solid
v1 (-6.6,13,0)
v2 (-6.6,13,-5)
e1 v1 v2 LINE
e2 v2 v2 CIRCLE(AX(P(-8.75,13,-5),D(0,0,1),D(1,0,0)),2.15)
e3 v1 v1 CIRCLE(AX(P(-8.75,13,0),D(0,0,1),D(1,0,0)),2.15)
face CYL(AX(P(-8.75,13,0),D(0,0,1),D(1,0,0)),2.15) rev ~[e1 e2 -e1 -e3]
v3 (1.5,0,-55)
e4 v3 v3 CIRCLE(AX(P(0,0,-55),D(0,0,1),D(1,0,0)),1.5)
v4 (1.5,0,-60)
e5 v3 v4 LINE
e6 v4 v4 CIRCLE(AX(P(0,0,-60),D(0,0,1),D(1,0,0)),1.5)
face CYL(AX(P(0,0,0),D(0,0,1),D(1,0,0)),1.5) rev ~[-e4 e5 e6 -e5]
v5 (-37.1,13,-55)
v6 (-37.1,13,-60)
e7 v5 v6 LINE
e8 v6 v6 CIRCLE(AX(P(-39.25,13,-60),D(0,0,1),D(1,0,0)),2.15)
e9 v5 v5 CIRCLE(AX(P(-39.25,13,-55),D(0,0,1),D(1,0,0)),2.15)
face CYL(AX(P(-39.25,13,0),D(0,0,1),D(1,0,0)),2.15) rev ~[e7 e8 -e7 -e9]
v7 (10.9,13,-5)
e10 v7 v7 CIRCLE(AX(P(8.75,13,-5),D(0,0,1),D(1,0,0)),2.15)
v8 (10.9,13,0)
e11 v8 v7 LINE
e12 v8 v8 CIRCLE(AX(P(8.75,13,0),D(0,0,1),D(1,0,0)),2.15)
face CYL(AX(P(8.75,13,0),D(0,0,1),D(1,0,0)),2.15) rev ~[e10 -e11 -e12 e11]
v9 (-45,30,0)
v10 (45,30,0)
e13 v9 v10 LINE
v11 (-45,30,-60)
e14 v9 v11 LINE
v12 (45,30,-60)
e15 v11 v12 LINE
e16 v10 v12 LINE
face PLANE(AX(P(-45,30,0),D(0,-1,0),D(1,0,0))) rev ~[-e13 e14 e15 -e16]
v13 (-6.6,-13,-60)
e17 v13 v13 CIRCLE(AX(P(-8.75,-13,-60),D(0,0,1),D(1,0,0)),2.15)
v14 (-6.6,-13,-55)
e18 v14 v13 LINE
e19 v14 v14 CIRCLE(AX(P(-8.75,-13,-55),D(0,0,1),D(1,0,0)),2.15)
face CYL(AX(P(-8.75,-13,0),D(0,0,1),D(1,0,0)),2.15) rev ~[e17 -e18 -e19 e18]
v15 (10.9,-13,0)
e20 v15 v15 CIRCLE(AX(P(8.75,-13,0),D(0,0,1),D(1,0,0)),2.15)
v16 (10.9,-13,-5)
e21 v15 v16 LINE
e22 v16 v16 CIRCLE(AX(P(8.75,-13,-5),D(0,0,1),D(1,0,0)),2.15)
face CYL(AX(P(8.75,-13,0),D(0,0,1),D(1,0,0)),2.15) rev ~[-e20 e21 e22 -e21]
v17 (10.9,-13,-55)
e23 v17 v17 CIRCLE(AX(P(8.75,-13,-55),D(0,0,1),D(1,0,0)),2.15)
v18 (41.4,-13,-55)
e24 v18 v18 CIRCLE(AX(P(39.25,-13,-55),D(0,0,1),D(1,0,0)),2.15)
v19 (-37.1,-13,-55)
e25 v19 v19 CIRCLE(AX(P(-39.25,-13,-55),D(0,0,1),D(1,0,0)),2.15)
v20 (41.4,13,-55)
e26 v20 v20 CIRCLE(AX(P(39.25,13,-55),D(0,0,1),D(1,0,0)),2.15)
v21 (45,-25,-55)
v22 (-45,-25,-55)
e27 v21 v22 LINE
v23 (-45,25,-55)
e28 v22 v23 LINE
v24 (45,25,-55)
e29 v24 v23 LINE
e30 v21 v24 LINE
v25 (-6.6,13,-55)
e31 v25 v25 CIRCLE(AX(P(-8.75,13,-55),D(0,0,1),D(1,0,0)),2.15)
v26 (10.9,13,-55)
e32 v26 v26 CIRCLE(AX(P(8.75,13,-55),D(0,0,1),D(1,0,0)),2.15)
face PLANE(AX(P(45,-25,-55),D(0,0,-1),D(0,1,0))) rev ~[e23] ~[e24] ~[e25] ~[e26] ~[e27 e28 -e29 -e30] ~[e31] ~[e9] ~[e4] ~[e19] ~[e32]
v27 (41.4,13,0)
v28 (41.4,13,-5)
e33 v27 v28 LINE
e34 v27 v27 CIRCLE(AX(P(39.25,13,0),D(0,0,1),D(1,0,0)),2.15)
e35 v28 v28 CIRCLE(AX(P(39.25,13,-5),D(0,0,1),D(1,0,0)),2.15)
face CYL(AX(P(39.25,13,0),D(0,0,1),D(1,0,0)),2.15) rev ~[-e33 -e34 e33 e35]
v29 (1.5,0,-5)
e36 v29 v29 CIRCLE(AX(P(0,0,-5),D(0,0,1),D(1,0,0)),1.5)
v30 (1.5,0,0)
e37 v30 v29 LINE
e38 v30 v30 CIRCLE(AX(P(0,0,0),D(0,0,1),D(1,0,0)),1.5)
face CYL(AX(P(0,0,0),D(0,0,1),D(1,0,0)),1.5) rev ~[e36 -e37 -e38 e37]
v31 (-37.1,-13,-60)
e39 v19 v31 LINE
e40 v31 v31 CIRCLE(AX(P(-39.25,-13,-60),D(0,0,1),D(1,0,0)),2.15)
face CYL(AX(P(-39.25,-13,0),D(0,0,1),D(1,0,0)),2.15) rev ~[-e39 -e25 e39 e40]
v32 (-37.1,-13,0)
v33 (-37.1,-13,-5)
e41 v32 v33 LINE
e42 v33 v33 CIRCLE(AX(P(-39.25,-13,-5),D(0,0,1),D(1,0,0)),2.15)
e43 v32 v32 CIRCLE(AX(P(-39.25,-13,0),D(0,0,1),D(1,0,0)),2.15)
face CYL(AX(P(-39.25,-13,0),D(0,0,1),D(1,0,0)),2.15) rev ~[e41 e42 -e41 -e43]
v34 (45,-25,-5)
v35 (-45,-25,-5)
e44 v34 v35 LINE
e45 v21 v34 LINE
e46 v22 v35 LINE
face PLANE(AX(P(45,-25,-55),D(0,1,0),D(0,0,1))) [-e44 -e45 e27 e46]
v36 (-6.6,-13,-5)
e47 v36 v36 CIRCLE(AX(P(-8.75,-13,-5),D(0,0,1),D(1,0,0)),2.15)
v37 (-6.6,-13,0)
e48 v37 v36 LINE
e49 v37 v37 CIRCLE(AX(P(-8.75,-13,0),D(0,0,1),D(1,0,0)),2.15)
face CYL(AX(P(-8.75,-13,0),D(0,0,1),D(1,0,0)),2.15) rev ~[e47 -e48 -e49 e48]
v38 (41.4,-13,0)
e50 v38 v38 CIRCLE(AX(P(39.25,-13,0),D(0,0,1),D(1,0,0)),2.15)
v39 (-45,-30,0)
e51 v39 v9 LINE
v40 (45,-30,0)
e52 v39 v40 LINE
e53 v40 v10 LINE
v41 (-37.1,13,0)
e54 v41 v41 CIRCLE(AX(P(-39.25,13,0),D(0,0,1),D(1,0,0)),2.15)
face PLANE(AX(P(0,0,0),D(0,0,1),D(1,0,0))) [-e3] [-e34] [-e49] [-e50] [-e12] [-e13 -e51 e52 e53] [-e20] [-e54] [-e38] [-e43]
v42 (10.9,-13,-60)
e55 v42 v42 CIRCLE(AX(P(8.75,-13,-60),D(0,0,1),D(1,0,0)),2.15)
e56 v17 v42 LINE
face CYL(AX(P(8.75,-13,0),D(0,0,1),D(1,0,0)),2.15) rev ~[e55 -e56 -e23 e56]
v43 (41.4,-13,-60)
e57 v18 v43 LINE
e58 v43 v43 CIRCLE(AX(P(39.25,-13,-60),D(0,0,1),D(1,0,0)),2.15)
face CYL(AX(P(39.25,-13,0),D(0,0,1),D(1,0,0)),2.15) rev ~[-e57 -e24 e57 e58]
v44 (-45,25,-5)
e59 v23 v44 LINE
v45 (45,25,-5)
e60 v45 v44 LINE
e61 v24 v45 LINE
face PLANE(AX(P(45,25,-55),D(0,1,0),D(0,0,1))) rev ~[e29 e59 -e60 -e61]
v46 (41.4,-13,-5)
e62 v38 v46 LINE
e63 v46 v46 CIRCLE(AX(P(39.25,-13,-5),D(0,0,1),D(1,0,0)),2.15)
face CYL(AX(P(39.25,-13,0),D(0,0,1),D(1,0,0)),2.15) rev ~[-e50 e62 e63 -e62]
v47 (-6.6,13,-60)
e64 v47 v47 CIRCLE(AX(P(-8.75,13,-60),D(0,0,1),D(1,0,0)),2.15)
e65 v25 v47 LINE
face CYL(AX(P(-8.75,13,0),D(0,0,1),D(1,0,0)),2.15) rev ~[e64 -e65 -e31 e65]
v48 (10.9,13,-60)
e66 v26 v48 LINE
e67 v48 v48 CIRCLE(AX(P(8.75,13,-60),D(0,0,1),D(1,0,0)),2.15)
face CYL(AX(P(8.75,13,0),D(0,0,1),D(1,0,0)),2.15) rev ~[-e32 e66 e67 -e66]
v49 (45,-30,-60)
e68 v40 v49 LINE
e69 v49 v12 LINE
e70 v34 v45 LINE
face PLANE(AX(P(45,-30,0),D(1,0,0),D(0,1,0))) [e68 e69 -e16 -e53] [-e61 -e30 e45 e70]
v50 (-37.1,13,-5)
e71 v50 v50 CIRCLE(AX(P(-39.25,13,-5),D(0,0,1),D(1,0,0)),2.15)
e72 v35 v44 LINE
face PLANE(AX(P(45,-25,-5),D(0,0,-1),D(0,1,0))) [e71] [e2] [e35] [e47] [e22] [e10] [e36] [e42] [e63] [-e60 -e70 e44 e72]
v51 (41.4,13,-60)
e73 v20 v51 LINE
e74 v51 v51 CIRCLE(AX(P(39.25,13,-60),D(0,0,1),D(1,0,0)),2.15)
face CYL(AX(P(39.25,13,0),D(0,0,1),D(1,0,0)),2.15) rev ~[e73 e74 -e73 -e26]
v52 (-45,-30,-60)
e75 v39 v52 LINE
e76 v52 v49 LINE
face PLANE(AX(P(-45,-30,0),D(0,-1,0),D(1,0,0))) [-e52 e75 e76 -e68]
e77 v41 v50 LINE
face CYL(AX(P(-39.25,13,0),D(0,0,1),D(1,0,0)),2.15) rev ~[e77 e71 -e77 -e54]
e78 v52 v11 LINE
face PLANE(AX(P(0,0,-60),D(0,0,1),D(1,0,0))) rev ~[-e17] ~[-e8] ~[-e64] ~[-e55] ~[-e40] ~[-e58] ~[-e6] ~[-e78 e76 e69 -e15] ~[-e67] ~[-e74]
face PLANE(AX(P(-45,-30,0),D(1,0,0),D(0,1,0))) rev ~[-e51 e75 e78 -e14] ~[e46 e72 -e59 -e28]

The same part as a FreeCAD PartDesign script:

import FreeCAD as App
import Part
import Sketcher
Q = App.Units.Quantity

doc = App.newDocument("Part")
body = doc.addObject("PartDesign::Body", "Body")

sketch1 = doc.addObject("Sketcher::SketchObject", "Sketch")
body.addObject(sketch1)
sketch1.AttachmentSupport = (doc.XY_Plane, [""])
sketch1.MapMode = "FlatFace"
sketch1.addGeometry([
    Part.LineSegment(App.Vector(-45, 30, 0), App.Vector(-45, -30, 0)),
    Part.LineSegment(App.Vector(-45, -30, 0), App.Vector(45, -30, 0)),
    Part.LineSegment(App.Vector(45, -30, 0), App.Vector(45, 30, 0)),
    Part.LineSegment(App.Vector(45, 30, 0), App.Vector(-45, 30, 0)),
    Part.Circle(App.Vector(-39.2, -13, 0), App.Vector(0, 0, 1), 2.1),
    Part.Circle(App.Vector(-8.8, -13, 0), App.Vector(0, 0, 1), 2.1),
    Part.Circle(App.Vector(8.8, -13, 0), App.Vector(0, 0, 1), 2.1),
    Part.Circle(App.Vector(39.2, -13, 0), App.Vector(0, 0, 1), 2.1),
    Part.Circle(App.Vector(-39.2, 13, 0), App.Vector(0, 0, 1), 2.1),
    Part.Circle(App.Vector(-8.8, 13, 0), App.Vector(0, 0, 1), 2.1),
    Part.Circle(App.Vector(8.8, 13, 0), App.Vector(0, 0, 1), 2.1),
    Part.Circle(App.Vector(39.2, 13, 0), App.Vector(0, 0, 1), 2.1),
], False)
sketch1.addConstraint([
    Sketcher.Constraint("Coincident", 0, 2, 1, 1),
    Sketcher.Constraint("Coincident", 1, 2, 2, 1),
    Sketcher.Constraint("Coincident", 2, 2, 3, 1),
    Sketcher.Constraint("Coincident", 3, 2, 0, 1),
    Sketcher.Constraint("Vertical", 0),
    Sketcher.Constraint("Horizontal", 1),
    Sketcher.Constraint("Vertical", 2),
    Sketcher.Constraint("Horizontal", 3),
    Sketcher.Constraint("Equal", 4, 5),
    Sketcher.Constraint("Equal", 5, 6),
    Sketcher.Constraint("Equal", 6, 7),
    Sketcher.Constraint("Equal", 7, 8),
    Sketcher.Constraint("Equal", 8, 9),
    Sketcher.Constraint("Equal", 9, 10),
    Sketcher.Constraint("Equal", 10, 11),
    Sketcher.Constraint("Symmetric", 7, 3, 8, 3, -1, 1),
    Sketcher.Constraint("Symmetric", 6, 3, 9, 3, -1, 1),
    Sketcher.Constraint("Symmetric", 5, 3, 10, 3, -1, 1),
    Sketcher.Constraint("Symmetric", 4, 3, 11, 3, -1, 1),
    Sketcher.Constraint("Symmetric", 0, 2, 2, 2, -1, 1),
    Sketcher.Constraint("Symmetric", 5, 3, 6, 3, -2),
    Sketcher.Constraint("Symmetric", 4, 3, 7, 3, -2),
    Sketcher.Constraint("Horizontal", 4, 3, 5, 3),
    Sketcher.Constraint("Diameter", 4, Q("4.3 mm")),
    Sketcher.Constraint("DistanceX", 1, 1, 1, 2, Q("90 mm")),
    Sketcher.Constraint("DistanceY", 0, 2, 0, 1, Q("60 mm")),
    Sketcher.Constraint("DistanceY", 4, 3, -1, 1, Q("13 mm")),
    Sketcher.Constraint("DistanceX", 4, 3, 6, 3, Q("48 mm")),
    Sketcher.Constraint("DistanceX", 4, 3, 5, 3, Q("30.5 mm")),
])
pad1 = doc.addObject("PartDesign::Pad", "Pad")
body.addObject(pad1)
pad1.Profile = sketch1
pad1.Length = 60
pad1.Reversed = True

sketch2 = doc.addObject("Sketcher::SketchObject", "Sketch001")
body.addObject(sketch2)
sketch2.AttachmentSupport = (doc.XY_Plane, [""])
sketch2.MapMode = "FlatFace"
sketch2.addGeometry(Part.Circle(App.Vector(0, 0, 0), App.Vector(0, 0, 1), 1.5), False)
sketch2.addConstraint([
    Sketcher.Constraint("Coincident", 0, 3, -1, 1),
    Sketcher.Constraint("Diameter", 0, Q("3 mm")),
])
pocket1 = doc.addObject("PartDesign::Pocket", "Pocket")
body.addObject(pocket1)
pocket1.Profile = sketch2
pocket1.Length = 60

sketch3 = doc.addObject("Sketcher::SketchObject", "Sketch002")
body.addObject(sketch3)
sketch3.AttachmentSupport = (doc.YZ_Plane, [""])
sketch3.MapMode = "FlatFace"
sketch3.AttachmentOffset = App.Placement(App.Vector(0, 0, 45), App.Rotation())
sketch3.addGeometry([
    Part.LineSegment(App.Vector(-25, -5, 0), App.Vector(-25, -55, 0)),
    Part.LineSegment(App.Vector(-25, -55, 0), App.Vector(25, -55, 0)),
    Part.LineSegment(App.Vector(25, -55, 0), App.Vector(25, -5, 0)),
    Part.LineSegment(App.Vector(25, -5, 0), App.Vector(-25, -5, 0)),
], False)
sketch3.addConstraint([
    Sketcher.Constraint("Coincident", 0, 2, 1, 1),
    Sketcher.Constraint("Coincident", 1, 2, 2, 1),
    Sketcher.Constraint("Coincident", 2, 2, 3, 1),
    Sketcher.Constraint("Coincident", 3, 2, 0, 1),
    Sketcher.Constraint("Vertical", 0),
    Sketcher.Constraint("Horizontal", 1),
    Sketcher.Constraint("Vertical", 2),
    Sketcher.Constraint("Horizontal", 3),
    Sketcher.Constraint("Equal", 3, 0),
    Sketcher.Constraint("DistanceX", 1, 1, 1, 2, Q("50 mm")),
    Sketcher.Constraint("DistanceX", 0, 2, -1, 1, Q("25 mm")),
    Sketcher.Constraint("DistanceY", 0, 2, -1, 1, Q("55 mm")),
])
pocket2 = doc.addObject("PartDesign::Pocket", "Pocket001")
body.addObject(pocket2)
pocket2.Profile = sketch3
pocket2.Length = 90

doc.recompute()
